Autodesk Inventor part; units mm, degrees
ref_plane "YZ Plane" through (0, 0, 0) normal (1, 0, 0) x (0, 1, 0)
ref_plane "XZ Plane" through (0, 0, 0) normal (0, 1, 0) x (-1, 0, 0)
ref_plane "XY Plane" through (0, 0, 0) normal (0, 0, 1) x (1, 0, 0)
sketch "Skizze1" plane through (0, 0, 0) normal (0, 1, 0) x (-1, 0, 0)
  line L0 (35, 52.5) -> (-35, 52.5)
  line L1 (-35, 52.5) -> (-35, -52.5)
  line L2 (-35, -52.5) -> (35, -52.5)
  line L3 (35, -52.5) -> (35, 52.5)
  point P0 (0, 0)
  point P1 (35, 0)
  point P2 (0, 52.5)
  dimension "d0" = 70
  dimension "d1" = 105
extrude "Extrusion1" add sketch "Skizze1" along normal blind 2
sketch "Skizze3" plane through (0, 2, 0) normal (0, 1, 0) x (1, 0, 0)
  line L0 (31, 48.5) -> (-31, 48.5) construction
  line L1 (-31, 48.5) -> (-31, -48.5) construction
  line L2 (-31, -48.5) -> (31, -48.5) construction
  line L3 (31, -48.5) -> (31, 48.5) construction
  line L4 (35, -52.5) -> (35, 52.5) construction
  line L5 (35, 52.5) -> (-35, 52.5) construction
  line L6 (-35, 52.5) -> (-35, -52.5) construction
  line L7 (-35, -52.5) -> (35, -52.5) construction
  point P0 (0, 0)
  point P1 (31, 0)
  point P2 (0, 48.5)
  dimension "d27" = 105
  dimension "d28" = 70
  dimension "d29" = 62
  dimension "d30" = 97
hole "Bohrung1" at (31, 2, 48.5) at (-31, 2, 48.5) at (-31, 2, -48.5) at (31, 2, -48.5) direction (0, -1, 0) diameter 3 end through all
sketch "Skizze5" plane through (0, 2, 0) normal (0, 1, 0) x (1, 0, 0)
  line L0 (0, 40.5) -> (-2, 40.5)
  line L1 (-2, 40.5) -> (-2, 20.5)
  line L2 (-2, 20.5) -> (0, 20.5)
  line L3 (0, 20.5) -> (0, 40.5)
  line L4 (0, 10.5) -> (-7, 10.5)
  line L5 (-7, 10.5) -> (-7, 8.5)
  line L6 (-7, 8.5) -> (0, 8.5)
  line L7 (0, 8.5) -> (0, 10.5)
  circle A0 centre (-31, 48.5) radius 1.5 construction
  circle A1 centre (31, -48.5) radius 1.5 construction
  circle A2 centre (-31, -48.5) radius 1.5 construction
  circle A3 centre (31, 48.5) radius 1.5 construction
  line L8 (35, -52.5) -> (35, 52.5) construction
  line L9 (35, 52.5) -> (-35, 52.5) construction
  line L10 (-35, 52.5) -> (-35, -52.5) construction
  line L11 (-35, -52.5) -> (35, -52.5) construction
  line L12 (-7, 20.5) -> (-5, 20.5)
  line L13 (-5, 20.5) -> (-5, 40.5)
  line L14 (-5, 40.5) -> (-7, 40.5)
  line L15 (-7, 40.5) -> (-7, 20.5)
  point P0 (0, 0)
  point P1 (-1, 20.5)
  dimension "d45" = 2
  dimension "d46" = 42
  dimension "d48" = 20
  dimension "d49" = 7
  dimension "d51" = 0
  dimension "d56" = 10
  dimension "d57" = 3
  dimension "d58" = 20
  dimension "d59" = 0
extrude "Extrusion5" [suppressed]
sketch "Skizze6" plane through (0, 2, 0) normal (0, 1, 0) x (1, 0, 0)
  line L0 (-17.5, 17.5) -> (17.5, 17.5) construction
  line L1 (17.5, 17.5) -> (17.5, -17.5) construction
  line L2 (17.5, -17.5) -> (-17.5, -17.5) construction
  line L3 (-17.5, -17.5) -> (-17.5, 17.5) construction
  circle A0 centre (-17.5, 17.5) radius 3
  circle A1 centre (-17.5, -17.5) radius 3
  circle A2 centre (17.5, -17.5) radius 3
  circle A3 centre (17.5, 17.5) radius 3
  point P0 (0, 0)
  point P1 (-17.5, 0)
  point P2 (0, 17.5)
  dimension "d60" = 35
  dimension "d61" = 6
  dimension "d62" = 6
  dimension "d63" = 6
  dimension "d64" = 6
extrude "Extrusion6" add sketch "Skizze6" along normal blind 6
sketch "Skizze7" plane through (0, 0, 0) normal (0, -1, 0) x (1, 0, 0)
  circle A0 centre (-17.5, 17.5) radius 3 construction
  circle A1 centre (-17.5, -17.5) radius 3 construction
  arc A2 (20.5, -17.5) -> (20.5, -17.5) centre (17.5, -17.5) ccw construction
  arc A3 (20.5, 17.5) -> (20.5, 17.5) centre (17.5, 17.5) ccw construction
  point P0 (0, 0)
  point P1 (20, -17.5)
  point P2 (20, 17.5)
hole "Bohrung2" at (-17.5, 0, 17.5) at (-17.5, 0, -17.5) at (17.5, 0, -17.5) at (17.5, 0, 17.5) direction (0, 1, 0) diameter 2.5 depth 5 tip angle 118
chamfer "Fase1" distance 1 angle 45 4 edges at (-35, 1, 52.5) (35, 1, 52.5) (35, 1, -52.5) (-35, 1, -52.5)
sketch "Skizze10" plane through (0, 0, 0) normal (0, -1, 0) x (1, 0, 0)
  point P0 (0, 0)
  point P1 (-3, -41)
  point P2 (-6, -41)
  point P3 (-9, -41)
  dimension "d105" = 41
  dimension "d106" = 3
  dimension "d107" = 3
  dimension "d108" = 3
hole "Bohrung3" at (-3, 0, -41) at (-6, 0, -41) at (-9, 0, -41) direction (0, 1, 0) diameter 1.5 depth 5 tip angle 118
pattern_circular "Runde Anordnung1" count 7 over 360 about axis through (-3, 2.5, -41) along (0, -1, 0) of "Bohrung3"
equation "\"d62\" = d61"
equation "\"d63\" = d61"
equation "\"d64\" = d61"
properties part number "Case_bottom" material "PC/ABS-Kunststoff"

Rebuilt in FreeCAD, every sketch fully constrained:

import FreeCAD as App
import Part
import Sketcher
from FreeCAD import Vector


def edges_at(feature, points):
    """Names of the edges that pass closest to the given points."""
    edges = feature.Shape.Edges
    near = lambda p: min(range(len(edges)), key=lambda i: edges[i].distToShape(Part.Vertex(*p))[0])
    return sorted({f"Edge{near(p) + 1}" for p in points})


def add_polygon(sketch, points):
    """Adds a closed chain of lines whose ends are joined by coincident constraints."""
    first, n = sketch.GeometryCount, len(points)
    for a, b in zip(points, points[1:] + points[:1]):
        sketch.addGeometry(Part.LineSegment(App.Vector(*a, 0), App.Vector(*b, 0)), False)
    for i in range(n):
        sketch.addConstraint(Sketcher.Constraint("Coincident", first + i, 2, first + (i + 1) % n, 1))

doc = App.newDocument("Part")
body = doc.addObject("PartDesign::Body", "Body")

# Sketch on XZ plane
sketch1 = doc.addObject("Sketcher::SketchObject", "Sketch")
body.addObject(sketch1)
sketch1.AttachmentSupport = (doc.XZ_Plane, [""])
sketch1.MapMode = "FlatFace"
add_polygon(sketch1, [(-35, -52), (-35, 52), (35, 52), (35, -52)])  # lines 0-3
sketch1.addConstraint(Sketcher.Constraint("Vertical", 0))
sketch1.addConstraint(Sketcher.Constraint("Horizontal", 1))
sketch1.addConstraint(Sketcher.Constraint("Vertical", 2))
sketch1.addConstraint(Sketcher.Constraint("Horizontal", 3))
sketch1.addConstraint(Sketcher.Constraint("Symmetric", 0, 2, 2, 2, -1, 1))
sketch1.addConstraint(Sketcher.Constraint("DistanceX", 1, 1, 1, 2, 70.0))
sketch1.addConstraint(Sketcher.Constraint("DistanceY", 0, 1, 0, 2, 105.0))
pad1 = doc.addObject("PartDesign::Pad", "Pad")
body.addObject(pad1)
pad1.Profile = sketch1
pad1.Length = 2
pad1.Reversed = True

# Sketch on XZ plane
sketch2 = doc.addObject("Sketcher::SketchObject", "Sketch001")
body.addObject(sketch2)
sketch2.AttachmentSupport = (doc.XZ_Plane, [""])
sketch2.MapMode = "FlatFace"
sketch2.AttachmentOffset = App.Placement(Vector(0, 0, -2), App.Rotation())
sketch2.addGeometry(Part.Circle(Vector(31, 48.5, 0), Vector(0, 0, 1), 1.5), False)
sketch2.addGeometry(Part.Circle(Vector(-31, 48.5, 0), Vector(0, 0, 1), 1.5), False)
sketch2.addGeometry(Part.Circle(Vector(-31, -48.5, 0), Vector(0, 0, 1), 1.5), False)
sketch2.addGeometry(Part.Circle(Vector(31, -48.5, 0), Vector(0, 0, 1), 1.5), False)
sketch2.addConstraint(Sketcher.Constraint("Equal", 0, 1))
sketch2.addConstraint(Sketcher.Constraint("Equal", 1, 2))
sketch2.addConstraint(Sketcher.Constraint("Equal", 2, 3))
sketch2.addConstraint(Sketcher.Constraint("Symmetric", 0, 3, 2, 3, -1, 1))
sketch2.addConstraint(Sketcher.Constraint("Symmetric", 1, 3, 3, 3, -1, 1))
sketch2.addConstraint(Sketcher.Constraint("Symmetric", 0, 3, 1, 3, -2))
sketch2.addConstraint(Sketcher.Constraint("Diameter", 0, 3.0))
sketch2.addConstraint(Sketcher.Constraint("DistanceX", -1, 1, 0, 3, 31.0))
sketch2.addConstraint(Sketcher.Constraint("DistanceY", 2, 3, 1, 3, 97.0))
doc.recompute()
hole = doc.addObject("PartDesign::Hole", "Hole")
body.addObject(hole)
hole.Profile = sketch2
hole.ThreadType = "None"
hole.Diameter = 3
hole.DepthType = "ThroughAll"
hole.Reversed = True

# Sketch on XZ plane
sketch3 = doc.addObject("Sketcher::SketchObject", "Sketch002")
body.addObject(sketch3)
sketch3.AttachmentSupport = (doc.XZ_Plane, [""])
sketch3.MapMode = "FlatFace"
sketch3.AttachmentOffset = App.Placement(Vector(0, 0, -2), App.Rotation())
sketch3.addGeometry(Part.Circle(Vector(-17.5, -17.5, 0), Vector(0, 0, 1), 3), False)
sketch3.addGeometry(Part.Circle(Vector(-17.5, 17.5, 0), Vector(0, 0, 1), 3), False)
sketch3.addGeometry(Part.Circle(Vector(17.5, 17.5, 0), Vector(0, 0, 1), 3), False)
sketch3.addGeometry(Part.Circle(Vector(17.5, -17.5, 0), Vector(0, 0, 1), 3), False)
sketch3.addConstraint(Sketcher.Constraint("Equal", 0, 1))
sketch3.addConstraint(Sketcher.Constraint("Equal", 1, 2))
sketch3.addConstraint(Sketcher.Constraint("Equal", 2, 3))
sketch3.addConstraint(Sketcher.Constraint("Symmetric", 0, 3, 2, 3, -1, 1))
sketch3.addConstraint(Sketcher.Constraint("Symmetric", 1, 3, 3, 3, -1, 1))
sketch3.addConstraint(Sketcher.Constraint("Symmetric", 1, 3, 2, 3, -2))
sketch3.addConstraint(Sketcher.Constraint("Diameter", 0, 6.0))
sketch3.addConstraint(Sketcher.Constraint("DistanceY", 0, 3, 1, 3, 35.0))
sketch3.addConstraint(Sketcher.Constraint("DistanceX", 1, 3, 2, 3, 35.0))
pad2 = doc.addObject("PartDesign::Pad", "Pad001")
body.addObject(pad2)
pad2.Profile = sketch3
pad2.Length = 6
pad2.Reversed = True

# Sketch on XZ plane
sketch4 = doc.addObject("Sketcher::SketchObject", "Sketch003")
body.addObject(sketch4)
sketch4.AttachmentSupport = (doc.XZ_Plane, [""])
sketch4.MapMode = "FlatFace"
sketch4.addGeometry(Part.Circle(Vector(-17.5, 17.5, 0), Vector(0, 0, 1), 1.2), False)
sketch4.addGeometry(Part.Circle(Vector(-17.5, -17.5, 0), Vector(0, 0, 1), 1.2), False)
sketch4.addGeometry(Part.Circle(Vector(17.5, -17.5, 0), Vector(0, 0, 1), 1.2), False)
sketch4.addGeometry(Part.Circle(Vector(17.5, 17.5, 0), Vector(0, 0, 1), 1.2), False)
sketch4.addConstraint(Sketcher.Constraint("Equal", 0, 1))
sketch4.addConstraint(Sketcher.Constraint("Equal", 1, 2))
sketch4.addConstraint(Sketcher.Constraint("Equal", 2, 3))
sketch4.addConstraint(Sketcher.Constraint("Symmetric", 0, 3, 2, 3, -1, 1))
sketch4.addConstraint(Sketcher.Constraint("Symmetric", 1, 3, 3, 3, -1, 1))
sketch4.addConstraint(Sketcher.Constraint("Symmetric", 1, 3, 2, 3, -2))
sketch4.addConstraint(Sketcher.Constraint("Diameter", 0, 2.5))
sketch4.addConstraint(Sketcher.Constraint("DistanceY", 1, 3, 0, 3, 35.0))
sketch4.addConstraint(Sketcher.Constraint("DistanceX", 1, 3, 2, 3, 35.0))
doc.recompute()
hole2 = doc.addObject("PartDesign::Hole", "Hole001")
body.addObject(hole2)
hole2.Profile = sketch4
hole2.ThreadType = "None"
hole2.Diameter = 2.5
hole2.DepthType = "Dimension"
hole2.Depth = 5
hole2.DrillPoint = "Angled"
hole2.DrillPointAngle = 118
doc.recompute()

chamfer = doc.addObject("PartDesign::Chamfer", "Chamfer")
body.addObject(chamfer)
chamfer.Base = (hole2, edges_at(hole2, [
    (-35, 1, 52.5),
    (35, 1, 52.5),
    (35, 1, -52.5),
    (-35, 1, -52.5),
]))
chamfer.Size = 1

# Sketch on XZ plane
sketch5 = doc.addObject("Sketcher::SketchObject", "Sketch004")
body.addObject(sketch5)
sketch5.AttachmentSupport = (doc.XZ_Plane, [""])
sketch5.MapMode = "FlatFace"
sketch5.addGeometry(Part.Circle(Vector(-3, -41, 0), Vector(0, 0, 1), 0.8), False)
sketch5.addGeometry(Part.Circle(Vector(-6, -41, 0), Vector(0, 0, 1), 0.8), False)
sketch5.addGeometry(Part.Circle(Vector(-9, -41, 0), Vector(0, 0, 1), 0.8), False)
sketch5.addConstraint(Sketcher.Constraint("Equal", 0, 1))
sketch5.addConstraint(Sketcher.Constraint("Equal", 1, 2))
sketch5.addConstraint(Sketcher.Constraint("Horizontal", 0, 3, 1, 3))
sketch5.addConstraint(Sketcher.Constraint("Horizontal", 1, 3, 2, 3))
sketch5.addConstraint(Sketcher.Constraint("Diameter", 0, 1.5))
sketch5.addConstraint(Sketcher.Constraint("DistanceX", 0, 3, -1, 1, 3.0))
sketch5.addConstraint(Sketcher.Constraint("DistanceY", 0, 3, -1, 1, 41.0))
sketch5.addConstraint(Sketcher.Constraint("DistanceX", 1, 3, -1, 1, 6.0))
sketch5.addConstraint(Sketcher.Constraint("DistanceX", 2, 3, -1, 1, 9.0))
doc.recompute()
hole3 = doc.addObject("PartDesign::Hole", "Hole002")
body.addObject(hole3)
hole3.Profile = sketch5
hole3.ThreadType = "None"
hole3.Diameter = 1.5
hole3.DepthType = "Dimension"
hole3.Depth = 5
hole3.DrillPoint = "Angled"
hole3.DrillPointAngle = 118
doc.recompute()

datumline = doc.addObject("PartDesign::Line", "DatumLine")
body.addObject(datumline)
datumline.Placement = App.Placement(Vector(-3, 0, -41), App.Rotation(Vector(0, 0, 1), Vector(0, 1, 0)))
polarpattern = doc.addObject("PartDesign::PolarPattern", "PolarPattern")
body.addObject(polarpattern)
polarpattern.Originals = [hole3]
polarpattern.Axis = (datumline, [""])
polarpattern.Angle = 360
polarpattern.Occurrences = 7
body.Tip = polarpattern

doc.recompute()
